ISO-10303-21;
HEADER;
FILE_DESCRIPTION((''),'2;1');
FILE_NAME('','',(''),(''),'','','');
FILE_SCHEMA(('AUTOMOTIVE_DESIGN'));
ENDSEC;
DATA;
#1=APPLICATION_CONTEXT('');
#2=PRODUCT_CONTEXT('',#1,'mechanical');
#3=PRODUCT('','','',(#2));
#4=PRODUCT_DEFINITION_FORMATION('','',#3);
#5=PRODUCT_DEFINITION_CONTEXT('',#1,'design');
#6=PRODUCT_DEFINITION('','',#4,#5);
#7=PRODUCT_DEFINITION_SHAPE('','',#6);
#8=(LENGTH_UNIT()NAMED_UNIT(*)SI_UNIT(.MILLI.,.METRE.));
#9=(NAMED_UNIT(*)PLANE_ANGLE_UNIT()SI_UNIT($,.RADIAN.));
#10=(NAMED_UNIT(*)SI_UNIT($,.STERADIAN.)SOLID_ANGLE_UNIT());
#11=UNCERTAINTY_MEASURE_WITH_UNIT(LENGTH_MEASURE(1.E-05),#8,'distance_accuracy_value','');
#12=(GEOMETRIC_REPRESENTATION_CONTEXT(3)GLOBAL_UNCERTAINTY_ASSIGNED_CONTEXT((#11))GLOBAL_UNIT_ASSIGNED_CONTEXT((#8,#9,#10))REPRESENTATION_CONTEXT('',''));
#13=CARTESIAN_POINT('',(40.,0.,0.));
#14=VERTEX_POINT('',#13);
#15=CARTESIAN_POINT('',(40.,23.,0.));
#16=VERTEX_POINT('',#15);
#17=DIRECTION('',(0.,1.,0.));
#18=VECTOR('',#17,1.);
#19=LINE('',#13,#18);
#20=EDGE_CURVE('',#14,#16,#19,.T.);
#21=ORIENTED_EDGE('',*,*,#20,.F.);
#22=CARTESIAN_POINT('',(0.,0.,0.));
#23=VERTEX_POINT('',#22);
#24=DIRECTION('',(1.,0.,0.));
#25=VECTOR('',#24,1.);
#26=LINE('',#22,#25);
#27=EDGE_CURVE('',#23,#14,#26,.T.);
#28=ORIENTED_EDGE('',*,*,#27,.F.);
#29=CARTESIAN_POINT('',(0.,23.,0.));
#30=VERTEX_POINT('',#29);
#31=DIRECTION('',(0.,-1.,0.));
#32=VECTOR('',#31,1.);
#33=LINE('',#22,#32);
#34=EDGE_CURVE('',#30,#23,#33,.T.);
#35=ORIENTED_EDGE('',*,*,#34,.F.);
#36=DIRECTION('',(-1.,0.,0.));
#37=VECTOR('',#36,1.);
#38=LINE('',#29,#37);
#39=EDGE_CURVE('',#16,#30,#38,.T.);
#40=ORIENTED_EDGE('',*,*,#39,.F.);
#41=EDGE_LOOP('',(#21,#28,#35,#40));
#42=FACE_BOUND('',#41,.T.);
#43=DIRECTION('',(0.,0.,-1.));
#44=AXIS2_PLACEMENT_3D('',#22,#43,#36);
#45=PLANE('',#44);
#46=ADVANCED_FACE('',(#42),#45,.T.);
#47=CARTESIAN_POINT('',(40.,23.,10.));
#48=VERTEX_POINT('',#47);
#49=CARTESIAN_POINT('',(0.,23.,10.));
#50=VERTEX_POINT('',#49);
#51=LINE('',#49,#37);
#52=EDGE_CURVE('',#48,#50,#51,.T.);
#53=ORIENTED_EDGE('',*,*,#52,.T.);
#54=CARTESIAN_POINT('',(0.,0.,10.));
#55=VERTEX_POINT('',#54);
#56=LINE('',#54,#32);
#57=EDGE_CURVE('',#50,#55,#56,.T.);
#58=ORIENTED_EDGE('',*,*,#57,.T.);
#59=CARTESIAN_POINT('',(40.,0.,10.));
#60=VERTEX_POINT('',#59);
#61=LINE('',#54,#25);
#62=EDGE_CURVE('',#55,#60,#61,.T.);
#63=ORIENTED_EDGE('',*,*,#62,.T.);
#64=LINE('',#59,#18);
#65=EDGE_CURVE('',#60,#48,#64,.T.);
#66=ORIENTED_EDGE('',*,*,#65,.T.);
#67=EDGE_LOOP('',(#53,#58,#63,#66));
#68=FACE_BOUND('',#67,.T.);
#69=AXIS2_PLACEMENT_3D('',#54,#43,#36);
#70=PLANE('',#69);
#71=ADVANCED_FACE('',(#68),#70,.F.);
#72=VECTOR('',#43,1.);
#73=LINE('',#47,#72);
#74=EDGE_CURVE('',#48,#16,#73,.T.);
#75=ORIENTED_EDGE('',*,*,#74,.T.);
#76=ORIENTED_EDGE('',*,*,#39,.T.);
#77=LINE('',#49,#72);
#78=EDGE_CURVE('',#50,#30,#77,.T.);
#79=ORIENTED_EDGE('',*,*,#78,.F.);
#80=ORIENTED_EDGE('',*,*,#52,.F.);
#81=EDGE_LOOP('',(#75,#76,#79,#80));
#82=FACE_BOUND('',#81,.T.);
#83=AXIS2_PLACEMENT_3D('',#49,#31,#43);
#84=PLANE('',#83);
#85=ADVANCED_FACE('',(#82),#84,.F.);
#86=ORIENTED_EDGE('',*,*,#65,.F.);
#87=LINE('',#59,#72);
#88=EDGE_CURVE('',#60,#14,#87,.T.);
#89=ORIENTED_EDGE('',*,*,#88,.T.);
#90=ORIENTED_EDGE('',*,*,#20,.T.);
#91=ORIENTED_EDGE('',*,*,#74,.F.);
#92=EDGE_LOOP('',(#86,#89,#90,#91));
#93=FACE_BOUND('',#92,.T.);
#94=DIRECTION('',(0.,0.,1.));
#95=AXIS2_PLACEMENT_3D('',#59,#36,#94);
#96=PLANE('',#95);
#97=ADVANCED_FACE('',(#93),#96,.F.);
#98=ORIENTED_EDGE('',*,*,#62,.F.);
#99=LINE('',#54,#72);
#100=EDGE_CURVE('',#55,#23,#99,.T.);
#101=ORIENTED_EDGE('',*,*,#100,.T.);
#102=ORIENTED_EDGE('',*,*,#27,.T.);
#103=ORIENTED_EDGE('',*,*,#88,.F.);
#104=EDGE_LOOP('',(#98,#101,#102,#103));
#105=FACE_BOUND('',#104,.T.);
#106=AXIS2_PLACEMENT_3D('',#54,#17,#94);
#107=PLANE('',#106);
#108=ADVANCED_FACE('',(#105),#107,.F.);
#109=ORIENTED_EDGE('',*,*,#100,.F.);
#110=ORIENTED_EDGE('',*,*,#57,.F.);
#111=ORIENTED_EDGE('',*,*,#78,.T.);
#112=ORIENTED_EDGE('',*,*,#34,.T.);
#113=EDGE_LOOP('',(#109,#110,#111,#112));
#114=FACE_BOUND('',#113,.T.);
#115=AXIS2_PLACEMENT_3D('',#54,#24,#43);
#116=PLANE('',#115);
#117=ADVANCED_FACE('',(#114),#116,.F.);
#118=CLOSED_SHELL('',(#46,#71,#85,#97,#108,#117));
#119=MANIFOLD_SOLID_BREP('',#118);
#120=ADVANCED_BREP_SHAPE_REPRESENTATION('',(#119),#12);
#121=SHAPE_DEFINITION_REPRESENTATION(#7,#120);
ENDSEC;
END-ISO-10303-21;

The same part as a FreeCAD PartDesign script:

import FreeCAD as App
import Part
import Sketcher
from FreeCAD import Vector


def add_polygon(sketch, points):
    """Adds a closed chain of lines whose ends are joined by coincident constraints."""
    first, n = sketch.GeometryCount, len(points)
    for a, b in zip(points, points[1:] + points[:1]):
        sketch.addGeometry(Part.LineSegment(App.Vector(*a, 0), App.Vector(*b, 0)), False)
    for i in range(n):
        sketch.addConstraint(Sketcher.Constraint("Coincident", first + i, 2, first + (i + 1) % n, 1))

doc = App.newDocument("Part")
body = doc.addObject("PartDesign::Body", "Body")

# Sketch on XY plane
sketch1 = body.newObject("Sketcher::SketchObject", "Sketch")
sketch1.AttachmentSupport = (doc.getObject("XY_Plane"), [""])
sketch1.MapMode = "FlatFace"
add_polygon(sketch1, [(0, 23), (0, 0), (40, 0), (40, 23)])  # lines 0-3
sketch1.addConstraint(Sketcher.Constraint("Vertical", 0))
sketch1.addConstraint(Sketcher.Constraint("Horizontal", 1))
sketch1.addConstraint(Sketcher.Constraint("Vertical", 2))
sketch1.addConstraint(Sketcher.Constraint("Horizontal", 3))
sketch1.addConstraint(Sketcher.Constraint("Coincident", 0, 2, -1, 1))
sketch1.addConstraint(Sketcher.Constraint("DistanceX", 1, 1, 1, 2, 40.0))
sketch1.addConstraint(Sketcher.Constraint("DistanceY", 0, 2, 0, 1, 23.0))
pad1 = body.newObject("PartDesign::Pad", "Pad")
pad1.Profile = sketch1
pad1.Length = 10

doc.recompute()
